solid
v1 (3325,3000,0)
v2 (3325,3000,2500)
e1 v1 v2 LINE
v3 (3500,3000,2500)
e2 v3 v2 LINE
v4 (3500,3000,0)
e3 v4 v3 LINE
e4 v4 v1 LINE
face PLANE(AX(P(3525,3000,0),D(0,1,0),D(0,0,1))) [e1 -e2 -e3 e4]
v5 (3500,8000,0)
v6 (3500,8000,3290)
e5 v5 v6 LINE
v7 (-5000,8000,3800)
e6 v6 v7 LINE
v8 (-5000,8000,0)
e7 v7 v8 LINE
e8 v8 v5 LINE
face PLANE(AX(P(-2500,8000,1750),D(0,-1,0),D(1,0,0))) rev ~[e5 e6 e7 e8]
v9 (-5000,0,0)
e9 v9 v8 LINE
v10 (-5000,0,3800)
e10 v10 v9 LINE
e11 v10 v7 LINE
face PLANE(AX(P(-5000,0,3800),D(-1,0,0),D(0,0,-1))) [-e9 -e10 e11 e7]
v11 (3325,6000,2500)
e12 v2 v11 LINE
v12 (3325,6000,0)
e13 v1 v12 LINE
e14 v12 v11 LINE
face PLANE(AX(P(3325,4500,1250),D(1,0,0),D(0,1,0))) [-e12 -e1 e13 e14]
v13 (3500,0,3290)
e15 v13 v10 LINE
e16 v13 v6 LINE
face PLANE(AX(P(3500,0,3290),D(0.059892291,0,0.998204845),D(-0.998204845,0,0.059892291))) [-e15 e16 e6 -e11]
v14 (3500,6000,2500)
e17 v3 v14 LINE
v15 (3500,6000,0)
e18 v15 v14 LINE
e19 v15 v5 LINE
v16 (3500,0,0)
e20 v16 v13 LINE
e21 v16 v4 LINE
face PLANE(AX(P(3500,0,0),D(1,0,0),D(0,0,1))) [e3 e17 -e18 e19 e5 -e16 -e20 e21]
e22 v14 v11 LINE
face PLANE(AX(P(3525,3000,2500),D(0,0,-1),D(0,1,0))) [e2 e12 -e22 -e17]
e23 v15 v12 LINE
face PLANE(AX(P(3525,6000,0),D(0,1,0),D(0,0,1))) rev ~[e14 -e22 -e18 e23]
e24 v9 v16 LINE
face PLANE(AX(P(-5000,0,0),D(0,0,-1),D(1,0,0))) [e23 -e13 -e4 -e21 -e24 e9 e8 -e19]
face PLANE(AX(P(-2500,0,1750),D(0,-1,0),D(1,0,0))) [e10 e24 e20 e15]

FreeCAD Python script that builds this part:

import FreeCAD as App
import Part
import Sketcher
from FreeCAD import Vector


def add_polygon(sketch, points):
    """Adds a closed chain of lines whose ends are joined by coincident constraints."""
    first, n = sketch.GeometryCount, len(points)
    for a, b in zip(points, points[1:] + points[:1]):
        sketch.addGeometry(Part.LineSegment(App.Vector(*a, 0), App.Vector(*b, 0)), False)
    for i in range(n):
        sketch.addConstraint(Sketcher.Constraint("Coincident", first + i, 2, first + (i + 1) % n, 1))

doc = App.newDocument("Part")
body = doc.addObject("PartDesign::Body", "Body")

sketch1 = body.newObject("Sketcher::SketchObject", "Sketch")
sketch1.AttachmentSupport = (doc.getObject("XZ_Plane"), [""])
sketch1.MapMode = "FlatFace"
add_polygon(sketch1, [(-5000, 0), (3500, 0), (3500, 3290), (-5000, 3800)])
sketch1.addConstraint([
    Sketcher.Constraint("Horizontal", 0),
    Sketcher.Constraint("Vertical", 1),
    Sketcher.Constraint("Vertical", 3),
    Sketcher.Constraint("PointOnObject", 0, 2, -1),
    Sketcher.Constraint("DistanceX", 0, 1, 0, 2, 8500.0),
    Sketcher.Constraint("DistanceY", 1, 1, 1, 2, 3290.0),
    Sketcher.Constraint("DistanceY", 3, 2, 3, 1, 3800.0),
    Sketcher.Constraint("DistanceX", -1, 1, 0, 2, 3500.0),
])
pad1 = body.newObject("PartDesign::Pad", "Pad")
pad1.Profile = sketch1
pad1.Length = 8000
pad1.Reversed = True

sketch2 = body.newObject("Sketcher::SketchObject", "Sketch001")
sketch2.AttachmentSupport = (doc.getObject("YZ_Plane"), [""])
sketch2.MapMode = "FlatFace"
sketch2.AttachmentOffset = App.Placement(Vector(0, 0, 3525), App.Rotation())
add_polygon(sketch2, [(3000, 2500), (3000, 0), (6000, 0), (6000, 2500)])
sketch2.addConstraint([
    Sketcher.Constraint("Vertical", 0),
    Sketcher.Constraint("Horizontal", 1),
    Sketcher.Constraint("Vertical", 2),
    Sketcher.Constraint("Horizontal", 3),
    Sketcher.Constraint("PointOnObject", 0, 2, -1),
    Sketcher.Constraint("DistanceX", 1, 1, 1, 2, 3000.0),
    Sketcher.Constraint("DistanceY", 0, 2, 0, 1, 2500.0),
    Sketcher.Constraint("DistanceX", -1, 1, 0, 2, 3000.0),
])
pocket1 = body.newObject("PartDesign::Pocket", "Pocket")
pocket1.Profile = sketch2
pocket1.Length = 200

doc.recompute()
